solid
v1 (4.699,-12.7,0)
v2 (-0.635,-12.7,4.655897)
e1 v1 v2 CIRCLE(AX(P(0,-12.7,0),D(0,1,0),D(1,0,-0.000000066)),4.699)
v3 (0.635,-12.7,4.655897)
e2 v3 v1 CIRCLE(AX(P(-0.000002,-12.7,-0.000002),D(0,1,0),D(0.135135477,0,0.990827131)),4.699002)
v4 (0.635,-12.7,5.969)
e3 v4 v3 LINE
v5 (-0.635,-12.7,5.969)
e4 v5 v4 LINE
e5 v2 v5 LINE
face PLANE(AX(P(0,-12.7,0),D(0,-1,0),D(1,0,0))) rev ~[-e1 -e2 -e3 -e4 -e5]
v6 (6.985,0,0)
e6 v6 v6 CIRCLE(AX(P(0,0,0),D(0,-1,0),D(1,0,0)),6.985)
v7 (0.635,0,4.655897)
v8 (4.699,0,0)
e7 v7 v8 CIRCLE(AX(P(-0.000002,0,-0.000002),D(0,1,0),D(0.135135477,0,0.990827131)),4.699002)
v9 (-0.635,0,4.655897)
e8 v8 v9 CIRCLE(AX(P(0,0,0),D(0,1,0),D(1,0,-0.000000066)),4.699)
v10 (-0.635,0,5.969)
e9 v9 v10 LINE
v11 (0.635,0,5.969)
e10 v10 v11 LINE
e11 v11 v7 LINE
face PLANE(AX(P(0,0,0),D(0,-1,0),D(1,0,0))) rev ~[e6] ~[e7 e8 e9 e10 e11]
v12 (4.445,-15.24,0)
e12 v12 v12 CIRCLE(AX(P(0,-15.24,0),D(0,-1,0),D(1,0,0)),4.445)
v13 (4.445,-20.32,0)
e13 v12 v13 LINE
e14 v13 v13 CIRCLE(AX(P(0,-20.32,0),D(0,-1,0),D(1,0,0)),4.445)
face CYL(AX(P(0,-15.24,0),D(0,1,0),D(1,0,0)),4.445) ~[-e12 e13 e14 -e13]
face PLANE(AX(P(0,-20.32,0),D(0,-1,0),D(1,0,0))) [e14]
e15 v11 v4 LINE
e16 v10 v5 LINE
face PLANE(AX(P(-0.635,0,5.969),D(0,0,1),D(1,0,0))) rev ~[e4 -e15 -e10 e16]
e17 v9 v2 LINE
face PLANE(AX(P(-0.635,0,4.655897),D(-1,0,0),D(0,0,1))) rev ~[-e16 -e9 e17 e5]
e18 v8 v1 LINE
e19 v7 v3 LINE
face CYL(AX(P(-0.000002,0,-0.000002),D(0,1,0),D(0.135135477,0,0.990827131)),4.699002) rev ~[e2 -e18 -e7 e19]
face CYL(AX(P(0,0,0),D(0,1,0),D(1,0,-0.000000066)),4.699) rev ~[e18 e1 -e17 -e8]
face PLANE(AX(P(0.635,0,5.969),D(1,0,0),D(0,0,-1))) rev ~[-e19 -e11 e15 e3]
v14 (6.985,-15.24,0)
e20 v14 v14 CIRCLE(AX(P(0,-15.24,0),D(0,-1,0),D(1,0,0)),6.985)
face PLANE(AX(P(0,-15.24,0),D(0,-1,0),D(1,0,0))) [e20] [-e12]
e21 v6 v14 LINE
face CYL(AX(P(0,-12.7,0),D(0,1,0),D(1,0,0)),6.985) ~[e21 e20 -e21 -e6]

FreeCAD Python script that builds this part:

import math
import FreeCAD as App
import Part
import Sketcher
from FreeCAD import Vector
Q = App.Units.Quantity

doc = App.newDocument("Part")
body = doc.addObject("PartDesign::Body", "Body")

sketch1 = doc.addObject("Sketcher::SketchObject", "Sketch")
body.addObject(sketch1)
sketch1.AttachmentSupport = (doc.XZ_Plane, [""])
sketch1.MapMode = "FlatFace"
sketch1.addGeometry([
    Part.Circle(Vector(0, 0, 0), Vector(0, 0, 1), 7),
    Part.LineSegment(Vector(0.6, 6, 0), Vector(0.6, 4.7, 0)),
    Part.ArcOfCircle(Part.Circle(Vector(0, 0, 0), Vector(0, 0, 1), 4.7), math.radians(0), math.radians(82)),
    Part.ArcOfCircle(Part.Circle(Vector(0, 0, 0), Vector(0, 0, 1), 4.7), math.radians(98), math.radians(360)),
    Part.LineSegment(Vector(-0.6, 4.7, 0), Vector(-0.6, 6, 0)),
    Part.LineSegment(Vector(-0.6, 6, 0), Vector(0.6, 6, 0)),
], False)
sketch1.addConstraint([
    Sketcher.Constraint("Coincident", 1, 2, 2, 2),
    Sketcher.Constraint("Tangent", 2, 1, 3, 2),
    Sketcher.Constraint("Coincident", 3, 1, 4, 1),
    Sketcher.Constraint("Coincident", 4, 2, 5, 1),
    Sketcher.Constraint("Coincident", 5, 2, 1, 1),
    Sketcher.Constraint("Vertical", 1),
    Sketcher.Constraint("Vertical", 4),
    Sketcher.Constraint("Horizontal", 5),
    Sketcher.Constraint("Coincident", 0, 3, -1, 1),
    Sketcher.Constraint("Coincident", 2, 3, -1, 1),
    Sketcher.Constraint("Symmetric", 1, 2, 3, 1, -2),
    Sketcher.Constraint("PointOnObject", 2, 1, -1),
    Sketcher.Constraint("Diameter", 0, Q("0.55 in")),
    Sketcher.Constraint("Radius", 2, Q("0.1850001 in")),
    Sketcher.Constraint("DistanceX", 5, 1, 5, 2, Q("0.05 in")),
    Sketcher.Constraint("DistanceY", -1, 1, 4, 2, Q("0.235 in")),
])
pad1 = doc.addObject("PartDesign::Pad", "Pad")
body.addObject(pad1)
pad1.Profile = sketch1
pad1.Length = Q("0.5 in")

sketch2 = doc.addObject("Sketcher::SketchObject", "Sketch001")
body.addObject(sketch2)
sketch2.AttachmentSupport = (doc.XZ_Plane, [""])
sketch2.MapMode = "FlatFace"
sketch2.AttachmentOffset = App.Placement(Vector(0, 0, 0.5 * 25.4), App.Rotation())
sketch2.addGeometry(Part.Circle(Vector(0, 0, 0), Vector(0, 0, 1), 7), False)
sketch2.addConstraint([
    Sketcher.Constraint("Coincident", 0, 3, -1, 1),
    Sketcher.Constraint("Diameter", 0, Q("0.55 in")),
])
pad2 = doc.addObject("PartDesign::Pad", "Pad001")
body.addObject(pad2)
pad2.Profile = sketch2
pad2.Length = Q("0.1 in")

sketch3 = doc.addObject("Sketcher::SketchObject", "Sketch002")
body.addObject(sketch3)
sketch3.AttachmentSupport = (doc.XZ_Plane, [""])
sketch3.MapMode = "FlatFace"
sketch3.AttachmentOffset = App.Placement(Vector(0, 0, 0.6 * 25.4), App.Rotation())
sketch3.addGeometry(Part.Circle(Vector(0, 0, 0), Vector(0, 0, 1), 4.4), False)
sketch3.addConstraint([
    Sketcher.Constraint("Coincident", 0, 3, -1, 1),
    Sketcher.Constraint("Diameter", 0, Q("0.35 in")),
])
pad3 = doc.addObject("PartDesign::Pad", "Pad002")
body.addObject(pad3)
pad3.Profile = sketch3
pad3.Length = Q("0.2 in")

doc.recompute()
